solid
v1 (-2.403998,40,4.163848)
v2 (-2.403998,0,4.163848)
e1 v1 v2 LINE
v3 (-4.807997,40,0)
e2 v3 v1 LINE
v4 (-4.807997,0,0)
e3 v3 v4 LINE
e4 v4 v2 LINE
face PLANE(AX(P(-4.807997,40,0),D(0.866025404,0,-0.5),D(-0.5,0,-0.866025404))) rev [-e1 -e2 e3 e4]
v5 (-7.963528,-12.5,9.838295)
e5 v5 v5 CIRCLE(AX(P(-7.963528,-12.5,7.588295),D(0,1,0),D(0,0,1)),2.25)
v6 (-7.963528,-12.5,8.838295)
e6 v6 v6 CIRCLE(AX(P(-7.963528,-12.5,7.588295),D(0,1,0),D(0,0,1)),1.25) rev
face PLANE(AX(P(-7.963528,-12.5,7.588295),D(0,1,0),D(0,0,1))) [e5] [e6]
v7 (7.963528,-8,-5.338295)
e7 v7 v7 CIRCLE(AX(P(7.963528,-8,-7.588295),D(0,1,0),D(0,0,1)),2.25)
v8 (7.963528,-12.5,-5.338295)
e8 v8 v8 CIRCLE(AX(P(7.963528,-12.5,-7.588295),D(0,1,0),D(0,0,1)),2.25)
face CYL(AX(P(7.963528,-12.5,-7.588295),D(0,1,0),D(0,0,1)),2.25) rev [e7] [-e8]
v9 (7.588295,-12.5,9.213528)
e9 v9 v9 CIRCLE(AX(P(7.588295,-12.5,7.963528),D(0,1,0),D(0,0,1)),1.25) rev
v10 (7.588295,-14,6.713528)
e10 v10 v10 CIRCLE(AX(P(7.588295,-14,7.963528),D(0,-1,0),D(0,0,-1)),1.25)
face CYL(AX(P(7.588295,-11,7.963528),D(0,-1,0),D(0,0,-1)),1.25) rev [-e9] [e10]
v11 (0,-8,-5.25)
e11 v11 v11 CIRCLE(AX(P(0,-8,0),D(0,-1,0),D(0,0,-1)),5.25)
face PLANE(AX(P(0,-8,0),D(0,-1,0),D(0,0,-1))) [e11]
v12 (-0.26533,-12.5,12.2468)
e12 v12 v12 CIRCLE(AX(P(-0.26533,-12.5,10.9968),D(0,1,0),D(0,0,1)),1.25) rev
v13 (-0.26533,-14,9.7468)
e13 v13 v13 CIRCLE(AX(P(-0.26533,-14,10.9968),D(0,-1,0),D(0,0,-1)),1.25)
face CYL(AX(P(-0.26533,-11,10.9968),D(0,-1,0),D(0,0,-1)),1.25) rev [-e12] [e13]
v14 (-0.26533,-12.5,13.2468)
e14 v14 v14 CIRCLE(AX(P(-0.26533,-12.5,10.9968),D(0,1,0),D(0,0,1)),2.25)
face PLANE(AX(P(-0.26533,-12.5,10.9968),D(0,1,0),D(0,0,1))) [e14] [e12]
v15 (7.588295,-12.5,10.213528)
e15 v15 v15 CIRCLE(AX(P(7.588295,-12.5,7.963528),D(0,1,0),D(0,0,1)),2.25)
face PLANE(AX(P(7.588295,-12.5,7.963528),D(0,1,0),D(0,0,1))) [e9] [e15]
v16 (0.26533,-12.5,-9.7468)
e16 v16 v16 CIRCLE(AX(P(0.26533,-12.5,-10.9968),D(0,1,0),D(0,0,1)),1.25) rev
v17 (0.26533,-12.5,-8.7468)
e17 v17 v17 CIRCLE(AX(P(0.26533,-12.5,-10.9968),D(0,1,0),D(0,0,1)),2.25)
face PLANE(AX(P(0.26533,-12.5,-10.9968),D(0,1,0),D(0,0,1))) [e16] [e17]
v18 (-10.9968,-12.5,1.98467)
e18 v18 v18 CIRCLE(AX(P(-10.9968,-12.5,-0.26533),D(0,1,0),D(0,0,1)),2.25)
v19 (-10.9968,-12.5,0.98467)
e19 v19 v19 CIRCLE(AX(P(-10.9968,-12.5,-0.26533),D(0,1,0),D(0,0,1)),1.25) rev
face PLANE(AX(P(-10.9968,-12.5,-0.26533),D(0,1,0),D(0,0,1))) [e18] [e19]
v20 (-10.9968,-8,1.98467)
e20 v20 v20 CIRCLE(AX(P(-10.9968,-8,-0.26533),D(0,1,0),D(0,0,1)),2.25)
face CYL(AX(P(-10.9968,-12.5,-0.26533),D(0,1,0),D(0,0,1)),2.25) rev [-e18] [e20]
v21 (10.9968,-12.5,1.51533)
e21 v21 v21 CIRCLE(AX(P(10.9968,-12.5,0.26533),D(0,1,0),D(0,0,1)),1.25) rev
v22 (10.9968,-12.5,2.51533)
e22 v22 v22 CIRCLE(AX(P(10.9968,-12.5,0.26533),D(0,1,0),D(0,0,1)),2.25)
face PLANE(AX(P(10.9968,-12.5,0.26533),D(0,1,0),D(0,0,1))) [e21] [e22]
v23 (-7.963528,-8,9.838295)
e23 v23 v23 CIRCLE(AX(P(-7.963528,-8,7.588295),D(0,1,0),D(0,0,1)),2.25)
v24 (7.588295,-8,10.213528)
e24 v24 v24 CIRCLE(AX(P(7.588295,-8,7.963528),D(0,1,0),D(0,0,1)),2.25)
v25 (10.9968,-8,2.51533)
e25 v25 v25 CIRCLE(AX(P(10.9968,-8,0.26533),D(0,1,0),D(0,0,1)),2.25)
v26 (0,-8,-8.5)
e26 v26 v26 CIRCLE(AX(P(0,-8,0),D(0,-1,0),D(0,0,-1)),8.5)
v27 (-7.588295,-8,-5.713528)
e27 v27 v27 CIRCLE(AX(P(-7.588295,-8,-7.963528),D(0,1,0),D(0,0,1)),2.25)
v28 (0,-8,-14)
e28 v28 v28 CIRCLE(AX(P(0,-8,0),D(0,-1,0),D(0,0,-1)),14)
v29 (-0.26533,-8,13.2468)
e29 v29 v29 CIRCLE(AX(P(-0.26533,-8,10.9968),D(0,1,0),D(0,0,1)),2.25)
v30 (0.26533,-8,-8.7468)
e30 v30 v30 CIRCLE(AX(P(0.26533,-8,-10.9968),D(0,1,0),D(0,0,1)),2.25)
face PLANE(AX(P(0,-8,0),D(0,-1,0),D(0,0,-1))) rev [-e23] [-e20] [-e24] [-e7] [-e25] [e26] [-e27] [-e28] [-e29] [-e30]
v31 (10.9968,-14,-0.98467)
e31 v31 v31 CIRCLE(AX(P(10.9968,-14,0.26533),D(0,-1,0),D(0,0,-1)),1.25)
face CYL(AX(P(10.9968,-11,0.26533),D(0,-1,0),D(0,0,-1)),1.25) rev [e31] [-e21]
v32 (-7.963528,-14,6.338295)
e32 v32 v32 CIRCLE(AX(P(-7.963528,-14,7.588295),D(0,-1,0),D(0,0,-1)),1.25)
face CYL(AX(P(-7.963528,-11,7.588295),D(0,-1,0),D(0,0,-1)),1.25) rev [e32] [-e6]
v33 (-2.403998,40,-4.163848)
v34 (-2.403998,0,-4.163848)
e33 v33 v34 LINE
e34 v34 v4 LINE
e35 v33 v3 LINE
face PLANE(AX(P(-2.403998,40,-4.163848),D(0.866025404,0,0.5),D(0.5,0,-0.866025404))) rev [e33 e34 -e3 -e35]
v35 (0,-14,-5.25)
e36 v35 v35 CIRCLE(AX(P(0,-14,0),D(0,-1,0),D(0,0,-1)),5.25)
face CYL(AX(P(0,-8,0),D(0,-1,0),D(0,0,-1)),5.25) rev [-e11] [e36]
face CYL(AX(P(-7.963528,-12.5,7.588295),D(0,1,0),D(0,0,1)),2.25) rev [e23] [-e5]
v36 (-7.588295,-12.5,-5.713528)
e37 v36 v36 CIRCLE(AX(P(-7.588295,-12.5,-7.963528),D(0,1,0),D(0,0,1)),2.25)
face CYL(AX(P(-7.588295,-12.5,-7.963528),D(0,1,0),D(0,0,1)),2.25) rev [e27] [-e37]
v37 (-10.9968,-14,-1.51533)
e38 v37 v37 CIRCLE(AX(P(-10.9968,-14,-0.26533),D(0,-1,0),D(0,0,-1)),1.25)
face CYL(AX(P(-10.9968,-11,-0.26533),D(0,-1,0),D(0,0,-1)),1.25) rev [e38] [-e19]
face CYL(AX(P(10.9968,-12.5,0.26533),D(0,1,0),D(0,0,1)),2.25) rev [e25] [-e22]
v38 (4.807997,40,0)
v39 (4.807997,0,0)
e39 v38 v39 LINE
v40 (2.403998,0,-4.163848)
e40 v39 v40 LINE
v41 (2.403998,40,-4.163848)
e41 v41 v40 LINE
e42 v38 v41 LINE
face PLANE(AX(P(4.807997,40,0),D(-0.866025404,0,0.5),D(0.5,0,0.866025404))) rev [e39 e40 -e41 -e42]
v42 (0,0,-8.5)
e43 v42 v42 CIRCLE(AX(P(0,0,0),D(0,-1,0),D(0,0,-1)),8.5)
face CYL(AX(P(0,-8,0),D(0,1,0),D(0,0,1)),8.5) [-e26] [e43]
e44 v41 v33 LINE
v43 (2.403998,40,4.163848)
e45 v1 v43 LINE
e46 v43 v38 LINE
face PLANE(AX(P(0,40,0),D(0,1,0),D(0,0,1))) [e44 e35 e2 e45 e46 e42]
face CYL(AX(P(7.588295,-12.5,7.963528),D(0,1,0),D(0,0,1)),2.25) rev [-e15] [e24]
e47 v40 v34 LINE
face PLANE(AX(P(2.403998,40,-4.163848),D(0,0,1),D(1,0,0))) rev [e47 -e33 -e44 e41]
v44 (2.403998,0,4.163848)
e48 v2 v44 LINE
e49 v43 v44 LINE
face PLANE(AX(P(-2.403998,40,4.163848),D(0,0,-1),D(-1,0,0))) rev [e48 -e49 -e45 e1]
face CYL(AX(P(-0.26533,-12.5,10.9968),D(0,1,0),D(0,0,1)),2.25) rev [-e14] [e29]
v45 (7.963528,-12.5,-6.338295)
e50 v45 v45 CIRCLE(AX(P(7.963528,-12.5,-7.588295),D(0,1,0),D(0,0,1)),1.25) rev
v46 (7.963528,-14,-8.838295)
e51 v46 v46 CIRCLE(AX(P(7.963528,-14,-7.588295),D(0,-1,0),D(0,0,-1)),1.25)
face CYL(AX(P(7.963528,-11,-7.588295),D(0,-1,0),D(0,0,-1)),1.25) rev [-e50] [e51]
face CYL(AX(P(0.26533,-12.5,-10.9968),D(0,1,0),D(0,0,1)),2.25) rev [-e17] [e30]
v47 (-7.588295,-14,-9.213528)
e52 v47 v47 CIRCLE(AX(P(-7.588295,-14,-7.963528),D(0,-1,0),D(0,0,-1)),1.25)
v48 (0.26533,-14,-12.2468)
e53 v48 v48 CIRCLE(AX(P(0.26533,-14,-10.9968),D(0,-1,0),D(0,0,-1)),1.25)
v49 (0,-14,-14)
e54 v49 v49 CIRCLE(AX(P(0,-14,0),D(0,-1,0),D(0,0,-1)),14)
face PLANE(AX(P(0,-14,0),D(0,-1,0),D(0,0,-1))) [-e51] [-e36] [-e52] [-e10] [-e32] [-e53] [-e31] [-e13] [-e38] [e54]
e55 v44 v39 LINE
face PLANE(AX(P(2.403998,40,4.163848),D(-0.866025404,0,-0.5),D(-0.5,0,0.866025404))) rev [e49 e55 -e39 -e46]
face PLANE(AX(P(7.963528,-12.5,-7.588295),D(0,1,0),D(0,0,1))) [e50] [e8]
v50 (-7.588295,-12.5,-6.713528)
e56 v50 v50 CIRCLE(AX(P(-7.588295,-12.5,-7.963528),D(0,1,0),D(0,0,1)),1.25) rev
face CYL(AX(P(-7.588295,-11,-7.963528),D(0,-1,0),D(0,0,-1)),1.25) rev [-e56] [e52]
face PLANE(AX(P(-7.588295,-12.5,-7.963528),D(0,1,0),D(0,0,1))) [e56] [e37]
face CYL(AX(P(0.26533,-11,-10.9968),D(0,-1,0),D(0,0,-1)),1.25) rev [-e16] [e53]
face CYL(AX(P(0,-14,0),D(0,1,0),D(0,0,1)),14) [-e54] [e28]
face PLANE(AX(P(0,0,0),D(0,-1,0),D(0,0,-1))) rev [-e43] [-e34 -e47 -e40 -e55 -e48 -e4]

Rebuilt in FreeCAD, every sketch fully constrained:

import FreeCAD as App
import Part
import Sketcher
from FreeCAD import Vector
Q = App.Units.Quantity


def add_polygon(sketch, points):
    """Adds a closed chain of lines whose ends are joined by coincident constraints."""
    first, n = sketch.GeometryCount, len(points)
    for a, b in zip(points, points[1:] + points[:1]):
        sketch.addGeometry(Part.LineSegment(App.Vector(*a, 0), App.Vector(*b, 0)), False)
    for i in range(n):
        sketch.addConstraint(Sketcher.Constraint("Coincident", first + i, 2, first + (i + 1) % n, 1))

doc = App.newDocument("Part")
body = doc.addObject("PartDesign::Body", "Body")

sketch1 = body.newObject("Sketcher::SketchObject", "Sketch")
sketch1.AttachmentSupport = (doc.getObject("XZ_Plane"), [""])
sketch1.MapMode = "FlatFace"
add_polygon(sketch1, [(-4.8, 0), (-2.4, 4.2), (2.4, 4.2), (4.8, 0), (2.4, -4.2), (-2.4, -4.2)])
sketch1.addConstraint(Sketcher.Constraint("Horizontal", 1))
sketch1.addConstraint(Sketcher.Constraint("Horizontal", 4))
sketch1.addConstraint(Sketcher.Constraint("Symmetric", 0, 2, 3, 2, -1, 1))
sketch1.addConstraint(Sketcher.Constraint("Symmetric", 2, 2, 5, 2, -1, 1))
sketch1.addConstraint(Sketcher.Constraint("PointOnObject", 2, 2, -1))
sketch1.addConstraint(Sketcher.Constraint("Parallel", 2, 5))
sketch1.addConstraint(Sketcher.Constraint("Vertical", 1, 2, 3, 2))
sketch1.addConstraint(Sketcher.Constraint("Angle", 0, Q("60 deg")))
sketch1.addConstraint(Sketcher.Constraint("DistanceX", 0, 2, -1, 1, 2.403998))
sketch1.addConstraint(Sketcher.Constraint("DistanceX", 1, 2, 2, 2, 2.403998))
pad1 = body.newObject("PartDesign::Pad", "Pad")
pad1.Profile = sketch1
pad1.Length = 40
pad1.Reversed = True

sketch2 = body.newObject("Sketcher::SketchObject", "Sketch001")
sketch2.AttachmentSupport = (doc.getObject("XZ_Plane"), [""])
sketch2.MapMode = "FlatFace"
sketch2.addGeometry(Part.Circle(Vector(0, 0, 0), Vector(0, 0, 1), 8), False)
sketch2.addConstraint(Sketcher.Constraint("Coincident", 0, 3, -1, 1))
sketch2.addConstraint(Sketcher.Constraint("Diameter", 0, 17.0))
pad2 = body.newObject("PartDesign::Pad", "Pad001")
pad2.Profile = sketch2
pad2.Length = 8

sketch3 = body.newObject("Sketcher::SketchObject", "Sketch002")
sketch3.AttachmentSupport = (doc.getObject("XZ_Plane"), [""])
sketch3.MapMode = "FlatFace"
sketch3.AttachmentOffset = App.Placement(Vector(0, 0, 8), App.Rotation())
sketch3.addGeometry(Part.Circle(Vector(0, 0, 0), Vector(0, 0, 1), 14), False)
sketch3.addConstraint(Sketcher.Constraint("Coincident", 0, 3, -1, 1))
sketch3.addConstraint(Sketcher.Constraint("Diameter", 0, 28.0))
pad3 = body.newObject("PartDesign::Pad", "Pad002")
pad3.Profile = sketch3
pad3.Length = 6

sketch4 = body.newObject("Sketcher::SketchObject", "Sketch003")
sketch4.AttachmentSupport = (doc.getObject("XZ_Plane"), [""])
sketch4.MapMode = "FlatFace"
sketch4.AttachmentOffset = App.Placement(Vector(0, 0, 14), App.Rotation())
sketch4.addGeometry(Part.Circle(Vector(-7.6, -8, 0), Vector(0, 0, 1), 1.2), False)
sketch4.addGeometry(Part.Circle(Vector(-11, -0.3, 0), Vector(0, 0, 1), 1.2), False)
sketch4.addGeometry(Part.Circle(Vector(-8, 7.6, 0), Vector(0, 0, 1), 1.2), False)
sketch4.addGeometry(Part.Circle(Vector(-0.3, 11, 0), Vector(0, 0, 1), 1.2), False)
sketch4.addGeometry(Part.Circle(Vector(7.6, 8, 0), Vector(0, 0, 1), 1.2), False)
sketch4.addGeometry(Part.Circle(Vector(11, 0.3, 0), Vector(0, 0, 1), 1.2), False)
sketch4.addGeometry(Part.Circle(Vector(8, -7.6, 0), Vector(0, 0, 1), 1.2), False)
sketch4.addGeometry(Part.Circle(Vector(0.3, -11, 0), Vector(0, 0, 1), 1.2), False)
sketch4.addConstraint(Sketcher.Constraint("Equal", 0, 1))
sketch4.addConstraint(Sketcher.Constraint("Equal", 1, 2))
sketch4.addConstraint(Sketcher.Constraint("Equal", 2, 3))
sketch4.addConstraint(Sketcher.Constraint("Equal", 3, 4))
sketch4.addConstraint(Sketcher.Constraint("Equal", 4, 5))
sketch4.addConstraint(Sketcher.Constraint("Equal", 5, 6))
sketch4.addConstraint(Sketcher.Constraint("Equal", 6, 7))
sketch4.addConstraint(Sketcher.Constraint("Symmetric", 0, 3, 4, 3, -1, 1))
sketch4.addConstraint(Sketcher.Constraint("Symmetric", 1, 3, 5, 3, -1, 1))
sketch4.addConstraint(Sketcher.Constraint("Symmetric", 2, 3, 6, 3, -1, 1))
sketch4.addConstraint(Sketcher.Constraint("Symmetric", 3, 3, 7, 3, -1, 1))
sketch4.addConstraint(Sketcher.Constraint("Diameter", 0, 2.5))
sketch4.addConstraint(Sketcher.Constraint("DistanceX", 1, 3, -1, 1, 10.9968))
sketch4.addConstraint(Sketcher.Constraint("DistanceY", -1, 1, 3, 3, 10.9968))
sketch4.addConstraint(Sketcher.Constraint("DistanceY", 0, 3, 1, 3, 7.698198))
sketch4.addConstraint(Sketcher.Constraint("DistanceX", 2, 3, 3, 3, 7.698198))
sketch4.addConstraint(Sketcher.Constraint("DistanceY", 1, 3, -1, 1, 0.26533))
sketch4.addConstraint(Sketcher.Constraint("DistanceX", 3, 3, -1, 1, 0.26533))
sketch4.addConstraint(Sketcher.Constraint("DistanceX", 0, 3, 4, 3, 15.17659))
sketch4.addConstraint(Sketcher.Constraint("DistanceY", -1, 1, 2, 3, 7.588295))
pocket1 = body.newObject("PartDesign::Pocket", "Pocket")
pocket1.Profile = sketch4
pocket1.Length = 3

sketch5 = body.newObject("Sketcher::SketchObject", "Sketch004")
sketch5.AttachmentSupport = (doc.getObject("XZ_Plane"), [""])
sketch5.MapMode = "FlatFace"
sketch5.AttachmentOffset = App.Placement(Vector(0, 0, 14), App.Rotation())
sketch5.addGeometry(Part.Circle(Vector(0, 0, 0), Vector(0, 0, 1), 5), False)
sketch5.addConstraint(Sketcher.Constraint("Coincident", 0, 3, -1, 1))
sketch5.addConstraint(Sketcher.Constraint("Diameter", 0, 10.5))
pocket2 = body.newObject("PartDesign::Pocket", "Pocket001")
pocket2.Profile = sketch5
pocket2.Length = 6

sketch6 = body.newObject("Sketcher::SketchObject", "Sketch005")
sketch6.AttachmentSupport = (doc.getObject("XZ_Plane"), [""])
sketch6.MapMode = "FlatFace"
sketch6.AttachmentOffset = App.Placement(Vector(0, 0, 8), App.Rotation())
sketch6.addGeometry(Part.Circle(Vector(11, 0.3, 0), Vector(0, 0, 1), 2.2), False)
sketch6.addGeometry(Part.Circle(Vector(7.6, 8, 0), Vector(0, 0, 1), 2.2), False)
sketch6.addGeometry(Part.Circle(Vector(-0.3, 11, 0), Vector(0, 0, 1), 2.2), False)
sketch6.addGeometry(Part.Circle(Vector(-8, 7.6, 0), Vector(0, 0, 1), 2.2), False)
sketch6.addGeometry(Part.Circle(Vector(-11, -0.3, 0), Vector(0, 0, 1), 2.2), False)
sketch6.addGeometry(Part.Circle(Vector(-7.6, -8, 0), Vector(0, 0, 1), 2.2), False)
sketch6.addGeometry(Part.Circle(Vector(0.3, -11, 0), Vector(0, 0, 1), 2.2), False)
sketch6.addGeometry(Part.Circle(Vector(8, -7.6, 0), Vector(0, 0, 1), 2.2), False)
sketch6.addConstraint(Sketcher.Constraint("Equal", 0, 1))
sketch6.addConstraint(Sketcher.Constraint("Equal", 1, 2))
sketch6.addConstraint(Sketcher.Constraint("Equal", 2, 3))
sketch6.addConstraint(Sketcher.Constraint("Equal", 3, 4))
sketch6.addConstraint(Sketcher.Constraint("Equal", 4, 5))
sketch6.addConstraint(Sketcher.Constraint("Equal", 5, 6))
sketch6.addConstraint(Sketcher.Constraint("Equal", 6, 7))
sketch6.addConstraint(Sketcher.Constraint("Symmetric", 0, 3, 4, 3, -1, 1))
sketch6.addConstraint(Sketcher.Constraint("Symmetric", 1, 3, 5, 3, -1, 1))
sketch6.addConstraint(Sketcher.Constraint("Symmetric", 2, 3, 6, 3, -1, 1))
sketch6.addConstraint(Sketcher.Constraint("Symmetric", 3, 3, 7, 3, -1, 1))
sketch6.addConstraint(Sketcher.Constraint("Diameter", 0, 4.5))
sketch6.addConstraint(Sketcher.Constraint("DistanceX", -1, 1, 0, 3, 10.9968))
sketch6.addConstraint(Sketcher.Constraint("DistanceY", -1, 1, 2, 3, 10.9968))
sketch6.addConstraint(Sketcher.Constraint("DistanceY", 0, 3, 1, 3, 7.698198))
sketch6.addConstraint(Sketcher.Constraint("DistanceX", 3, 3, 2, 3, 7.698198))
sketch6.addConstraint(Sketcher.Constraint("DistanceY", -1, 1, 0, 3, 0.26533))
sketch6.addConstraint(Sketcher.Constraint("DistanceX", 2, 3, -1, 1, 0.26533))
sketch6.addConstraint(Sketcher.Constraint("DistanceX", 5, 3, 1, 3, 15.17659))
sketch6.addConstraint(Sketcher.Constraint("DistanceY", -1, 1, 3, 3, 7.588295))
pocket3 = body.newObject("PartDesign::Pocket", "Pocket002")
pocket3.Profile = sketch6
pocket3.Length = 4.5
pocket3.Reversed = True

doc.recompute()
